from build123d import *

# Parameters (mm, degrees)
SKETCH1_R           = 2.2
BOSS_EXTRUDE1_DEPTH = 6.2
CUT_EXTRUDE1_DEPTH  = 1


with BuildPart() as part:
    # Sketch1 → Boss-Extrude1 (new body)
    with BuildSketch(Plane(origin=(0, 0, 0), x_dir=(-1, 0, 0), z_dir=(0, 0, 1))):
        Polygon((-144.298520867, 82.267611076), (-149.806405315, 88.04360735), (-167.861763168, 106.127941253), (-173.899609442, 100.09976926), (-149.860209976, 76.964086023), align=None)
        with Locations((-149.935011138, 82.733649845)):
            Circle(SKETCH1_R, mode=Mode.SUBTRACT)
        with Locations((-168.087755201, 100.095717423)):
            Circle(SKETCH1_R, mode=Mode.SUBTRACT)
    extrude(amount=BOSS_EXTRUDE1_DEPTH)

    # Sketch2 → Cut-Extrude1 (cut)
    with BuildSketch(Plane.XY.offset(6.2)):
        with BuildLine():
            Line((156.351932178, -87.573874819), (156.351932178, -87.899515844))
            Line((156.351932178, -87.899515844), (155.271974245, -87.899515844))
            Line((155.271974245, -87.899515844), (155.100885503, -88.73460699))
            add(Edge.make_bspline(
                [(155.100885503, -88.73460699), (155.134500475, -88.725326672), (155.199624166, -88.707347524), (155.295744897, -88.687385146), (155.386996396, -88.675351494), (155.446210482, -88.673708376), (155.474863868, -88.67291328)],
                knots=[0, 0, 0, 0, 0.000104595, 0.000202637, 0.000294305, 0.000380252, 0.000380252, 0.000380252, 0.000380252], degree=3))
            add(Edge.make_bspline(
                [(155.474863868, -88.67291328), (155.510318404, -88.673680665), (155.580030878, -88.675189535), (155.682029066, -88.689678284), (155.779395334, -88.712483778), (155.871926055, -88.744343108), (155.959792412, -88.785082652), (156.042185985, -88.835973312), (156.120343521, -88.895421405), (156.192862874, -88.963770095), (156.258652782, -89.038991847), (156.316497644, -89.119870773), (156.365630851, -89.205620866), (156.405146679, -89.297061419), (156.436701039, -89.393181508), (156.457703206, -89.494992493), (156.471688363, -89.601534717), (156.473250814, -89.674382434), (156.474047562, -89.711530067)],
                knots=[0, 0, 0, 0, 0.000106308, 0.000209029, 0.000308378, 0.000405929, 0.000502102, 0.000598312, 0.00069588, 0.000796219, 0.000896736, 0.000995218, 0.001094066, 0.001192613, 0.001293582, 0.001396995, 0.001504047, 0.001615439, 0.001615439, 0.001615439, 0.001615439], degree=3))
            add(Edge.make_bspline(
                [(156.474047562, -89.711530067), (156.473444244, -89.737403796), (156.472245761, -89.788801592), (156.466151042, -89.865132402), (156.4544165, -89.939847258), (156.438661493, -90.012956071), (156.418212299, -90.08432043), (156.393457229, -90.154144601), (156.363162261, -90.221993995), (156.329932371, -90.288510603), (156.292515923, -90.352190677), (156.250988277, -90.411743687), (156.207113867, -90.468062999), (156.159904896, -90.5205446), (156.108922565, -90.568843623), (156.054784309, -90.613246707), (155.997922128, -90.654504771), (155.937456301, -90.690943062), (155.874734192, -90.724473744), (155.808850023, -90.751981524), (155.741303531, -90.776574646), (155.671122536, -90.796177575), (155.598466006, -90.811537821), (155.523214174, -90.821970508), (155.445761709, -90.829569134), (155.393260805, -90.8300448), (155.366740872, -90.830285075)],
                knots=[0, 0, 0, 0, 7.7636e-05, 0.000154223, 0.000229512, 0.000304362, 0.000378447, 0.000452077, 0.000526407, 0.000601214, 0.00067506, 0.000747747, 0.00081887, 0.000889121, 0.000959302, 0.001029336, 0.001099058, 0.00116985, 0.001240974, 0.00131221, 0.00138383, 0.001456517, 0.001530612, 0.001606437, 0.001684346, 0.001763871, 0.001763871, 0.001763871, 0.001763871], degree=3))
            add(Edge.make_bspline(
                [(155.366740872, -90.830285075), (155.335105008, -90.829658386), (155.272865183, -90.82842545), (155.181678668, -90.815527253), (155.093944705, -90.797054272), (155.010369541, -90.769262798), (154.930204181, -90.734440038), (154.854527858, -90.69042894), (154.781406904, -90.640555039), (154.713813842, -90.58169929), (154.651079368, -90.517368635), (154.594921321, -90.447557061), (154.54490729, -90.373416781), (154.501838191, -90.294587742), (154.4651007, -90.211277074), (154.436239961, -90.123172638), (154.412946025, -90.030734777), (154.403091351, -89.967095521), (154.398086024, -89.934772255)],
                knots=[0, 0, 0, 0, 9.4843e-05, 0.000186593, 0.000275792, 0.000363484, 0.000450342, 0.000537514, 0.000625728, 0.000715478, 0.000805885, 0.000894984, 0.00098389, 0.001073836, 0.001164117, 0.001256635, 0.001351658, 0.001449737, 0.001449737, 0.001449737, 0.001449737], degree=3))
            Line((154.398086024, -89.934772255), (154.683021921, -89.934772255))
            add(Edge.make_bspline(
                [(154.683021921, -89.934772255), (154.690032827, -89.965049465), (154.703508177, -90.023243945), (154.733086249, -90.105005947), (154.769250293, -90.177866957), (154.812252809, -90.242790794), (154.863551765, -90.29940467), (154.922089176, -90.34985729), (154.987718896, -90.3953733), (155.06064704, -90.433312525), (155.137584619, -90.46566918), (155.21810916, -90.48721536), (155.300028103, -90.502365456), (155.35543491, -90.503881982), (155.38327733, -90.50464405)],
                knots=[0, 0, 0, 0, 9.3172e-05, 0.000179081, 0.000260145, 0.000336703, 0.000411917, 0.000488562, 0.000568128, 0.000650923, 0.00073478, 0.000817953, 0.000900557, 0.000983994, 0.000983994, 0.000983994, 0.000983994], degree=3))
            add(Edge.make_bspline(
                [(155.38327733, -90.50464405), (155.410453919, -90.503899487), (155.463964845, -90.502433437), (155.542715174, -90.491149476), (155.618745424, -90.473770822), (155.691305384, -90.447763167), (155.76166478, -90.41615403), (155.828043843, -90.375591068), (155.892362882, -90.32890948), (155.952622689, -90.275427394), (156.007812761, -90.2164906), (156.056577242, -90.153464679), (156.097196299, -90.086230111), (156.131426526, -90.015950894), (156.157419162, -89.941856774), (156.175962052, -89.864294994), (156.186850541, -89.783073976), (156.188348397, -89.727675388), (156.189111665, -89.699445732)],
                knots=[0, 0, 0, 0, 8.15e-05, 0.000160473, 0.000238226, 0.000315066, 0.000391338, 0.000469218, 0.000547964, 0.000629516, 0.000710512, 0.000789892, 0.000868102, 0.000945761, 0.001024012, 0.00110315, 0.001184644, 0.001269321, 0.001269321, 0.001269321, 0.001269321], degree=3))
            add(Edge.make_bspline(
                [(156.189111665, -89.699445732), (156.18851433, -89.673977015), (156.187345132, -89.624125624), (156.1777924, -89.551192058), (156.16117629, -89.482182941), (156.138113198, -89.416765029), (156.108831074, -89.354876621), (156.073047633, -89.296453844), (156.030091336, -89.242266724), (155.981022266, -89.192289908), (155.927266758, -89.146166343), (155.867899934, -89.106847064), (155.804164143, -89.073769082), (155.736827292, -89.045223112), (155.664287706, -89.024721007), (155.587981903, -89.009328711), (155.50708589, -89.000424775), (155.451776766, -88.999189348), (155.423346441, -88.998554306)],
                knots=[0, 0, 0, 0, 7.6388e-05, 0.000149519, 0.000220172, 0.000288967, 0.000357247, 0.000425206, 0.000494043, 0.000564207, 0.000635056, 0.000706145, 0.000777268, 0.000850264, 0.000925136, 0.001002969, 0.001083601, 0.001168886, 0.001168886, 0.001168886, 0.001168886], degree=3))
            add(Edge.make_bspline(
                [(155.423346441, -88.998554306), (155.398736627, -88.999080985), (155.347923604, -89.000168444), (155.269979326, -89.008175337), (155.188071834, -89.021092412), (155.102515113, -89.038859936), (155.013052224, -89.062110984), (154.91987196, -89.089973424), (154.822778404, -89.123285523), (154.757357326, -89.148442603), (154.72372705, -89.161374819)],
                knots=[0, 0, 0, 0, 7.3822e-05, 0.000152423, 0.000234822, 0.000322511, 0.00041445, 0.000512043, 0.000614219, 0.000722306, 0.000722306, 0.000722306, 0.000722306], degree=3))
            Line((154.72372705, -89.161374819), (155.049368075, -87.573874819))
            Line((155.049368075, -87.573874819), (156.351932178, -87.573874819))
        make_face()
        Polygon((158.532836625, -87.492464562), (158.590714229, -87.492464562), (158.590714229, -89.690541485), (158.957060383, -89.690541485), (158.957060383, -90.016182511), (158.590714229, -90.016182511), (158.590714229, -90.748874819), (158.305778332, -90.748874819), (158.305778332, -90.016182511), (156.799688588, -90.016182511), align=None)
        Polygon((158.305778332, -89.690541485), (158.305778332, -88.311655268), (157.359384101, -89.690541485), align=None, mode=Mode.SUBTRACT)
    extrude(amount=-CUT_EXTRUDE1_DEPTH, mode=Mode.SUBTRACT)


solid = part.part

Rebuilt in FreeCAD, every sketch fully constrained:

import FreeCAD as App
import Part
import Sketcher

V = App.Vector


def add_polygon(sketch, points):
    """Adds a closed chain of lines whose ends are joined by coincident constraints."""
    first, n = sketch.GeometryCount, len(points)
    for a, b in zip(points, points[1:] + points[:1]):
        sketch.addGeometry(Part.LineSegment(App.Vector(*a, 0), App.Vector(*b, 0)), False)
    for i in range(n):
        sketch.addConstraint(Sketcher.Constraint("Coincident", first + i, 2, first + (i + 1) % n, 1))

doc = App.newDocument("Part")
body = doc.addObject("PartDesign::Body", "Body")

# Sketch on XY plane
sketch1 = doc.addObject("Sketcher::SketchObject", "Sketch")
body.addObject(sketch1)
sketch1.AttachmentSupport = (doc.XY_Plane, [""])
sketch1.MapMode = "FlatFace"
add_polygon(sketch1, [(144.3, -82.3), (149.8, -88), (167.9, -106.1), (173.9, -100.1), (149.9, -77)])  # lines 0-4
sketch1.addGeometry(Part.Circle(V(149.9, -82.7, 0), V(0, 0, 1), 2.2), False)  # 5
sketch1.addGeometry(Part.Circle(V(168.1, -100.1, 0), V(0, 0, 1), 2.2), False)  # 6
sketch1.addConstraint(Sketcher.Constraint("Equal", 5, 6))
sketch1.addConstraint(Sketcher.Constraint("Perpendicular", 1, 2))
sketch1.addConstraint(Sketcher.Constraint("Perpendicular", 0, 4))
sketch1.addConstraint(Sketcher.Constraint("Diameter", 5, 4.4))
sketch1.addConstraint(Sketcher.Constraint("DistanceX", 5, 3, 2, 2, 23.964598))
sketch1.addConstraint(Sketcher.Constraint("DistanceX", 3, 2, 5, 3, 0.074801))
sketch1.addConstraint(Sketcher.Constraint("Distance", 0, 7.981161))
sketch1.addConstraint(Sketcher.Constraint("Distance", 1, 25.554629))
sketch1.addConstraint(Sketcher.Constraint("Distance", 3, 33.363941))
sketch1.addConstraint(Sketcher.Constraint("DistanceX", -1, 1, 5, 3, 149.935011))
sketch1.addConstraint(Sketcher.Constraint("DistanceY", 5, 3, -1, 1, 82.73365))
sketch1.addConstraint(Sketcher.Constraint("DistanceY", 1, 2, -1, 1, 106.127941))
sketch1.addConstraint(Sketcher.Constraint("DistanceY", 2, 2, -1, 1, 100.099769))
sketch1.addConstraint(Sketcher.Constraint("DistanceX", -1, 1, 4, 2, 144.298521))
sketch1.addConstraint(Sketcher.Constraint("DistanceX", 0, 2, 6, 3, 18.28135))
sketch1.addConstraint(Sketcher.Constraint("DistanceY", 6, 3, 0, 2, 12.05211))
pad1 = doc.addObject("PartDesign::Pad", "Pad")
body.addObject(pad1)
pad1.Profile = sketch1
pad1.Length = 6.2

# Sketch on XY plane
sketch2 = doc.addObject("Sketcher::SketchObject", "Sketch001")
body.addObject(sketch2)
sketch2.AttachmentSupport = (doc.XY_Plane, [""])
sketch2.MapMode = "FlatFace"
sketch2.AttachmentOffset = App.Placement(V(0, 0, 6.2), App.Rotation())
sketch2.addGeometry(Part.LineSegment(V(156.351932, -87.899516, 0), V(156.351932, -87.573875, 0)), False)  # 0
sketch2.addGeometry(Part.LineSegment(V(156.351932, -87.573875, 0), V(155.049368, -87.573875, 0)), False)  # 1
sketch2.addGeometry(Part.LineSegment(V(155.049368, -87.573875, 0), V(154.723727, -89.161375, 0)), False)  # 2
sketch2.addGeometry(Part.BSplineCurve([V(155.423346, -88.998554, 0), V(155.398737, -88.999081, 0), V(155.347924, -89.000168, 0), V(155.269979, -89.008175, 0), V(155.188072, -89.021092, 0), V(155.102515, -89.03886, 0), V(155.013052, -89.062111, 0), V(154.919872, -89.089973, 0), V(154.822778, -89.123286, 0), V(154.757357, -89.148443, 0), V(154.723727, -89.161375, 0)], [4, 1, 1, 1, 1, 1, 1, 1, 4], [0, 0.000073822, 0.000152423, 0.000234822, 0.000322511, 0.00041445, 0.000512043, 0.000614219, 0.000722306], False, 3, [1, 1, 1, 1, 1, 1, 1, 1, 1, 1, 1], False), False)  # 3
sketch2.addGeometry(Part.BSplineCurve([V(156.189112, -89.699446, 0), V(156.188514, -89.673977, 0), V(156.187345, -89.624126, 0), V(156.177792, -89.551192, 0), V(156.161176, -89.482183, 0), V(156.138113, -89.416765, 0), V(156.108831, -89.354877, 0), V(156.073048, -89.296454, 0), V(156.030091, -89.242267, 0), V(155.981022, -89.19229, 0), V(155.927267, -89.146166, 0), V(155.8679, -89.106847, 0), V(155.804164, -89.073769, 0), V(155.736827, -89.045223, 0), V(155.664288, -89.024721, 0), V(155.587982, -89.009329, 0), V(155.507086, -89.000425, 0), V(155.451777, -88.999189, 0), V(155.423346, -88.998554, 0)], [4, 1, 1, 1, 1, 1, 1, 1, 1, 1, 1, 1, 1, 1, 1, 1, 4], [0, 0.000076388, 0.000149519, 0.000220172, 0.000288967, 0.000357247, 0.000425206, 0.000494043, 0.000564207, 0.000635056, 0.000706145, 0.000777268, 0.000850264, 0.000925136, 0.001002969, 0.001083601, 0.001168886], False, 3, [1, 1, 1, 1, 1, 1, 1, 1, 1, 1, 1, 1, 1, 1, 1, 1, 1, 1, 1], False), False)  # 4
sketch2.addGeometry(Part.BSplineCurve([V(155.383277, -90.504644, 0), V(155.410454, -90.503899, 0), V(155.463965, -90.502433, 0), V(155.542715, -90.491149, 0), V(155.618745, -90.473771, 0), V(155.691305, -90.447763, 0), V(155.761665, -90.416154, 0), V(155.828044, -90.375591, 0), V(155.892363, -90.328909, 0), V(155.952623, -90.275427, 0), V(156.007813, -90.216491, 0), V(156.056577, -90.153465, 0), V(156.097196, -90.08623, 0), V(156.131427, -90.015951, 0), V(156.157419, -89.941857, 0), V(156.175962, -89.864295, 0), V(156.186851, -89.783074, 0), V(156.188348, -89.727675, 0), V(156.189112, -89.699446, 0)], [4, 1, 1, 1, 1, 1, 1, 1, 1, 1, 1, 1, 1, 1, 1, 1, 4], [0, 0.0000815, 0.000160473, 0.000238226, 0.000315066, 0.000391338, 0.000469218, 0.000547964, 0.000629516, 0.000710512, 0.000789892, 0.000868102, 0.000945761, 0.001024012, 0.00110315, 0.001184644, 0.001269321], False, 3, [1, 1, 1, 1, 1, 1, 1, 1, 1, 1, 1, 1, 1, 1, 1, 1, 1, 1, 1], False), False)  # 5
sketch2.addGeometry(Part.BSplineCurve([V(154.683022, -89.934772, 0), V(154.690033, -89.965049, 0), V(154.703508, -90.023244, 0), V(154.733086, -90.105006, 0), V(154.76925, -90.177867, 0), V(154.812253, -90.242791, 0), V(154.863552, -90.299405, 0), V(154.922089, -90.349857, 0), V(154.987719, -90.395373, 0), V(155.060647, -90.433313, 0), V(155.137585, -90.465669, 0), V(155.218109, -90.487215, 0), V(155.300028, -90.502365, 0), V(155.355435, -90.503882, 0), V(155.383277, -90.504644, 0)], [4, 1, 1, 1, 1, 1, 1, 1, 1, 1, 1, 1, 4], [0, 0.000093172, 0.000179081, 0.000260145, 0.000336703, 0.000411917, 0.000488562, 0.000568128, 0.000650923, 0.00073478, 0.000817953, 0.000900557, 0.000983994], False, 3, [1, 1, 1, 1, 1, 1, 1, 1, 1, 1, 1, 1, 1, 1, 1], False), False)  # 6
sketch2.addGeometry(Part.LineSegment(V(154.683022, -89.934772, 0), V(154.398086, -89.934772, 0)), False)  # 7
sketch2.addGeometry(Part.BSplineCurve([V(155.366741, -90.830285, 0), V(155.335105, -90.829658, 0), V(155.272865, -90.828425, 0), V(155.181679, -90.815527, 0), V(155.093945, -90.797054, 0), V(155.01037, -90.769263, 0), V(154.930204, -90.73444, 0), V(154.854528, -90.690429, 0), V(154.781407, -90.640555, 0), V(154.713814, -90.581699, 0), V(154.651079, -90.517369, 0), V(154.594921, -90.447557, 0), V(154.544907, -90.373417, 0), V(154.501838, -90.294588, 0), V(154.465101, -90.211277, 0), V(154.43624, -90.123173, 0), V(154.412946, -90.030735, 0), V(154.403091, -89.967096, 0), V(154.398086, -89.934772, 0)], [4, 1, 1, 1, 1, 1, 1, 1, 1, 1, 1, 1, 1, 1, 1, 1, 4], [0, 0.000094843, 0.000186593, 0.000275792, 0.000363484, 0.000450342, 0.000537514, 0.000625728, 0.000715478, 0.000805885, 0.000894984, 0.00098389, 0.001073836, 0.001164117, 0.001256635, 0.001351658, 0.001449737], False, 3, [1, 1, 1, 1, 1, 1, 1, 1, 1, 1, 1, 1, 1, 1, 1, 1, 1, 1, 1], False), False)  # 8
sketch2.addGeometry(Part.BSplineCurve([V(156.474048, -89.71153, 0), V(156.473444, -89.737404, 0), V(156.472246, -89.788802, 0), V(156.466151, -89.865132, 0), V(156.454417, -89.939847, 0), V(156.438661, -90.012956, 0), V(156.418212, -90.08432, 0), V(156.393457, -90.154145, 0), V(156.363162, -90.221994, 0), V(156.329932, -90.288511, 0), V(156.292516, -90.352191, 0), V(156.250988, -90.411744, 0), V(156.207114, -90.468063, 0), V(156.159905, -90.520545, 0), V(156.108923, -90.568844, 0), V(156.054784, -90.613247, 0), V(155.997922, -90.654505, 0), V(155.937456, -90.690943, 0), V(155.874734, -90.724474, 0), V(155.80885, -90.751982, 0), V(155.741304, -90.776575, 0), V(155.671123, -90.796178, 0), V(155.598466, -90.811538, 0), V(155.523214, -90.821971, 0), V(155.445762, -90.829569, 0), V(155.393261, -90.830045, 0), V(155.366741, -90.830285, 0)], [4, 1, 1, 1, 1, 1, 1, 1, 1, 1, 1, 1, 1, 1, 1, 1, 1, 1, 1, 1, 1, 1, 1, 1, 4], [0, 0.000077636, 0.000154223, 0.000229512, 0.000304362, 0.000378447, 0.000452077, 0.000526407, 0.000601214, 0.00067506, 0.000747747, 0.00081887, 0.000889121, 0.000959302, 0.001029336, 0.001099058, 0.00116985, 0.001240974, 0.00131221, 0.00138383, 0.001456517, 0.001530612, 0.001606437, 0.001684346, 0.001763871], False, 3, [1, 1, 1, 1, 1, 1, 1, 1, 1, 1, 1, 1, 1, 1, 1, 1, 1, 1, 1, 1, 1, 1, 1, 1, 1, 1, 1], False), False)  # 9
sketch2.addGeometry(Part.BSplineCurve([V(155.474864, -88.672913, 0), V(155.510318, -88.673681, 0), V(155.580031, -88.67519, 0), V(155.682029, -88.689678, 0), V(155.779395, -88.712484, 0), V(155.871926, -88.744343, 0), V(155.959792, -88.785083, 0), V(156.042186, -88.835973, 0), V(156.120344, -88.895421, 0), V(156.192863, -88.96377, 0), V(156.258653, -89.038992, 0), V(156.316498, -89.119871, 0), V(156.365631, -89.205621, 0), V(156.405147, -89.297061, 0), V(156.436701, -89.393182, 0), V(156.457703, -89.494992, 0), V(156.471688, -89.601535, 0), V(156.473251, -89.674382, 0), V(156.474048, -89.71153, 0)], [4, 1, 1, 1, 1, 1, 1, 1, 1, 1, 1, 1, 1, 1, 1, 1, 4], [0, 0.000106308, 0.000209029, 0.000308378, 0.000405929, 0.000502102, 0.000598312, 0.00069588, 0.000796219, 0.000896736, 0.000995218, 0.001094066, 0.001192613, 0.001293582, 0.001396995, 0.001504047, 0.001615439], False, 3, [1, 1, 1, 1, 1, 1, 1, 1, 1, 1, 1, 1, 1, 1, 1, 1, 1, 1, 1], False), False)  # 10
sketch2.addGeometry(Part.BSplineCurve([V(155.100886, -88.734607, 0), V(155.1345, -88.725327, 0), V(155.199624, -88.707348, 0), V(155.295745, -88.687385, 0), V(155.386996, -88.675351, 0), V(155.44621, -88.673708, 0), V(155.474864, -88.672913, 0)], [4, 1, 1, 1, 4], [0, 0.000104595, 0.000202637, 0.000294305, 0.000380252], False, 3, [1, 1, 1, 1, 1, 1, 1], False), False)  # 11
sketch2.addGeometry(Part.LineSegment(V(155.100886, -88.734607, 0), V(155.271974, -87.899516, 0)), False)  # 12
sketch2.addGeometry(Part.LineSegment(V(155.271974, -87.899516, 0), V(156.351932, -87.899516, 0)), False)  # 13
add_polygon(sketch2, [(158.590714, -87.492465), (158.532837, -87.492465), (156.799689, -90.016183), (158.305778, -90.016183), (158.305778, -90.748875), (158.590714, -90.748875), (158.590714, -90.016183), (158.95706, -90.016183), (158.95706, -89.690541), (158.590714, -89.690541)])  # lines 14-23
add_polygon(sketch2, [(158.305778, -89.690541), (157.359384, -89.690541), (158.305778, -88.311655)])  # lines 24-26
sketch2.addConstraint(Sketcher.Constraint("Block", 3))
sketch2.addConstraint(Sketcher.Constraint("Block", 4))
sketch2.addConstraint(Sketcher.Constraint("Block", 5))
sketch2.addConstraint(Sketcher.Constraint("Block", 6))
sketch2.addConstraint(Sketcher.Constraint("Block", 8))
sketch2.addConstraint(Sketcher.Constraint("Block", 9))
sketch2.addConstraint(Sketcher.Constraint("Block", 10))
sketch2.addConstraint(Sketcher.Constraint("Block", 11))
sketch2.addConstraint(Sketcher.Constraint("Coincident", 0, 2, 1, 1))
sketch2.addConstraint(Sketcher.Constraint("Coincident", 1, 2, 2, 1))
sketch2.addConstraint(Sketcher.Constraint("Coincident", 2, 2, 3, 2))
sketch2.addConstraint(Sketcher.Constraint("Coincident", 6, 1, 7, 1))
sketch2.addConstraint(Sketcher.Constraint("Coincident", 7, 2, 8, 2))
sketch2.addConstraint(Sketcher.Constraint("Coincident", 11, 1, 12, 1))
sketch2.addConstraint(Sketcher.Constraint("Coincident", 12, 2, 13, 1))
sketch2.addConstraint(Sketcher.Constraint("Coincident", 13, 2, 0, 1))
sketch2.addConstraint(Sketcher.Constraint("Vertical", 0))
sketch2.addConstraint(Sketcher.Constraint("Horizontal", 1))
sketch2.addConstraint(Sketcher.Constraint("Horizontal", 13))
sketch2.addConstraint(Sketcher.Constraint("Horizontal", 14))
sketch2.addConstraint(Sketcher.Constraint("Horizontal", 16))
sketch2.addConstraint(Sketcher.Constraint("Vertical", 17))
sketch2.addConstraint(Sketcher.Constraint("Horizontal", 18))
sketch2.addConstraint(Sketcher.Constraint("Vertical", 19))
sketch2.addConstraint(Sketcher.Constraint("Horizontal", 20))
sketch2.addConstraint(Sketcher.Constraint("Vertical", 21))
sketch2.addConstraint(Sketcher.Constraint("Horizontal", 22))
sketch2.addConstraint(Sketcher.Constraint("Vertical", 23))
sketch2.addConstraint(Sketcher.Constraint("Horizontal", 24))
sketch2.addConstraint(Sketcher.Constraint("Vertical", 26))
sketch2.addConstraint(Sketcher.Constraint("DistanceY", 17, 2, 0, 2, 3.175))
sketch2.addConstraint(Sketcher.Constraint("DistanceX", 16, 1, 16, 2, 1.50609))
sketch2.addConstraint(Sketcher.Constraint("DistanceY", 0, 1, 0, 2, 0.325641))
sketch2.addConstraint(Sketcher.Constraint("DistanceY", 21, 1, 21, 2, 0.325641))
sketch2.addConstraint(Sketcher.Constraint("DistanceY", 2, 2, 1, 2, 1.5875))
sketch2.addConstraint(Sketcher.Constraint("Distance", 15, 3.061528))
sketch2.addConstraint(Sketcher.Constraint("Distance", 25, 1.67242))
sketch2.addConstraint(Sketcher.Constraint("DistanceX", 1, 2, 1, 1, 1.302564))
sketch2.addConstraint(Sketcher.Constraint("DistanceX", 13, 1, 13, 2, 1.079958))
sketch2.addConstraint(Sketcher.Constraint("DistanceX", 14, 2, 14, 1, 0.057878))
sketch2.addConstraint(Sketcher.Constraint("DistanceX", 18, 1, 18, 2, 0.284936))
sketch2.addConstraint(Sketcher.Constraint("DistanceX", 20, 1, 20, 2, 0.366346))
sketch2.addConstraint(Sketcher.Constraint("DistanceX", 22, 2, 22, 1, 0.366346))
sketch2.addConstraint(Sketcher.Constraint("DistanceX", 24, 2, 24, 1, 0.946394))
sketch2.addConstraint(Sketcher.Constraint("DistanceY", 17, 2, 17, 1, 0.732692))
sketch2.addConstraint(Sketcher.Constraint("DistanceY", 19, 1, 19, 2, 0.732692))
sketch2.addConstraint(Sketcher.Constraint("DistanceX", -1, 1, 1, 2, 155.049368))
sketch2.addConstraint(Sketcher.Constraint("DistanceX", -1, 1, 15, 2, 156.799689))
sketch2.addConstraint(Sketcher.Constraint("DistanceY", 24, 2, -1, 1, 89.690541))
sketch2.addConstraint(Sketcher.Constraint("DistanceX", -1, 1, 25, 2, 158.305778))
pocket1 = doc.addObject("PartDesign::Pocket", "Pocket")
body.addObject(pocket1)
pocket1.Profile = sketch2
pocket1.Length = 1

doc.recompute()
